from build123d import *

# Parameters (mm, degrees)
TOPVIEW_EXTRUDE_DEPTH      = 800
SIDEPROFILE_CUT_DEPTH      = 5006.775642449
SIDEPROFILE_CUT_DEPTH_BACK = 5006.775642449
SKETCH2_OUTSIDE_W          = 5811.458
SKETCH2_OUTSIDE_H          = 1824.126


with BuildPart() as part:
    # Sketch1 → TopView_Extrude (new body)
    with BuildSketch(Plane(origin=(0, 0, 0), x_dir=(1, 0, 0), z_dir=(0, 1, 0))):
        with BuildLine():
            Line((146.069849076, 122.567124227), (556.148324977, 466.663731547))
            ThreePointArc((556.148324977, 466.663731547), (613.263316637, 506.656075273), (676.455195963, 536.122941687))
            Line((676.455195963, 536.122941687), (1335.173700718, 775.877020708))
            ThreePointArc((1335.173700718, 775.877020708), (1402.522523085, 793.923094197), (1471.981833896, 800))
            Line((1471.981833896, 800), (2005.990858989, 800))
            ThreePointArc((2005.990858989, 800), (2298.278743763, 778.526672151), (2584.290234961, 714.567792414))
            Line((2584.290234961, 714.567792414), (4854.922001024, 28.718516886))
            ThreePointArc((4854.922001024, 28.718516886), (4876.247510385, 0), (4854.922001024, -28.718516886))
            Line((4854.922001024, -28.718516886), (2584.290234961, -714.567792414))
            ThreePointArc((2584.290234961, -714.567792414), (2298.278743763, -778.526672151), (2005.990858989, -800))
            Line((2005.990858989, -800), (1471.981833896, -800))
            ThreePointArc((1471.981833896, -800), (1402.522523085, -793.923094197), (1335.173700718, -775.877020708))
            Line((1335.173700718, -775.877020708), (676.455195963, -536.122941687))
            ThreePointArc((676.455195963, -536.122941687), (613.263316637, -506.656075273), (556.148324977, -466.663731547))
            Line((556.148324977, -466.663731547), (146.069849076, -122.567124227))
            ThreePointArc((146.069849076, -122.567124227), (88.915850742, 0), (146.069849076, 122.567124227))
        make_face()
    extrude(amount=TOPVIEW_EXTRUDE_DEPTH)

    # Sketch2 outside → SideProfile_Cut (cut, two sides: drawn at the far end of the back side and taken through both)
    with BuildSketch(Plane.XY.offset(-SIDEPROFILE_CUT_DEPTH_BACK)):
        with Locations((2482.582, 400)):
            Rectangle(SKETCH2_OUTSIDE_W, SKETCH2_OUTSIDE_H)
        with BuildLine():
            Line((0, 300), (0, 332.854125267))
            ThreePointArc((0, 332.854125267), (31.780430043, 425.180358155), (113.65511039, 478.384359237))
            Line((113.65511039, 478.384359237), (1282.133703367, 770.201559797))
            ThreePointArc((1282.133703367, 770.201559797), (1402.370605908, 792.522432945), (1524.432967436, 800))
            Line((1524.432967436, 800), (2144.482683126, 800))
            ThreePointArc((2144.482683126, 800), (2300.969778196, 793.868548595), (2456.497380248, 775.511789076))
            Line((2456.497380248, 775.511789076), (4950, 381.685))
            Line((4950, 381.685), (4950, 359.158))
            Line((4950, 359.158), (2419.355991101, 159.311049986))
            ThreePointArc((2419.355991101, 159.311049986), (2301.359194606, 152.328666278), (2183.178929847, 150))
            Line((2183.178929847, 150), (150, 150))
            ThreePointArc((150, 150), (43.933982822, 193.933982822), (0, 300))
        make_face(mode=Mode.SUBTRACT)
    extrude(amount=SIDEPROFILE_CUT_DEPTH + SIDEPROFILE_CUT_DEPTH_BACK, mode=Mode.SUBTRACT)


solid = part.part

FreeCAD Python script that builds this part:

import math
import FreeCAD as App
import Part
import Sketcher
from FreeCAD import Vector

doc = App.newDocument("Part")
body = doc.addObject("PartDesign::Body", "Body")

# Sketch on XZ plane
sketch1 = body.newObject("Sketcher::SketchObject", "Sketch")
sketch1.AttachmentSupport = (doc.getObject("XZ_Plane"), [""])
sketch1.MapMode = "FlatFace"
sketch1.addGeometry([
    Part.LineSegment(Vector(556.148325, -466.663732, 0), Vector(146.069849, -122.567124, 0)),  # 0
    Part.ArcOfCircle(Part.Circle(Vector(248.915851, 0, 0), Vector(0, 0, 1), 160), math.radians(129.999993), math.radians(230.000007)),  # 1
    Part.LineSegment(Vector(146.069849, 122.567124, 0), Vector(556.148325, 466.663732, 0)),  # 2
    Part.ArcOfCircle(Part.Circle(Vector(813.263329, 160.245921, 0), Vector(0, 0, 1), 400), math.radians(110.000012), math.radians(129.999993)),  # 3
    Part.LineSegment(Vector(676.455196, 536.122942, 0), Vector(1335.173701, 775.877021, 0)),  # 4
    Part.ArcOfCircle(Part.Circle(Vector(1471.981834, 400, 0), Vector(0, 0, 1), 400), math.radians(90), math.radians(110.000012)),  # 5
    Part.LineSegment(Vector(1471.981834, 800, 0), Vector(2005.990859, 800, 0)),  # 6
    Part.ArcOfCircle(Part.Circle(Vector(2005.990859, -1200, 0), Vector(0, 0, 1), 2000), math.radians(73.192944), math.radians(90)),  # 7
    Part.LineSegment(Vector(2584.290235, 714.567792, 0), Vector(4854.922001, 28.718517, 0)),  # 8
    Part.ArcOfCircle(Part.Circle(Vector(4846.24751, 0, 0), Vector(0, 0, 1), 30), math.radians(-73.192944), math.radians(73.192944)),  # 9
    Part.LineSegment(Vector(4854.922001, -28.718517, 0), Vector(2584.290235, -714.567792, 0)),  # 10
    Part.ArcOfCircle(Part.Circle(Vector(2005.990859, 1200, 0), Vector(0, 0, 1), 2000), math.radians(-90), math.radians(-73.192944)),  # 11
    Part.LineSegment(Vector(2005.990859, -800, 0), Vector(1471.981834, -800, 0)),  # 12
    Part.ArcOfCircle(Part.Circle(Vector(1471.981834, -400, 0), Vector(0, 0, 1), 400), math.radians(-110.000012), math.radians(-90)),  # 13
    Part.LineSegment(Vector(1335.173701, -775.877021, 0), Vector(676.455196, -536.122942, 0)),  # 14
    Part.ArcOfCircle(Part.Circle(Vector(813.263329, -160.245921, 0), Vector(0, 0, 1), 400), math.radians(-129.999993), math.radians(-110.000012)),  # 15
], False)
sketch1.addConstraint([
    Sketcher.Constraint("Coincident", 0, 2, 1, 2),
    Sketcher.Constraint("Coincident", 1, 1, 2, 1),
    Sketcher.Constraint("Coincident", 2, 2, 3, 2),
    Sketcher.Constraint("Coincident", 3, 1, 4, 1),
    Sketcher.Constraint("Coincident", 4, 2, 5, 2),
    Sketcher.Constraint("Coincident", 5, 1, 6, 1),
    Sketcher.Constraint("Coincident", 6, 2, 7, 2),
    Sketcher.Constraint("Coincident", 7, 1, 8, 1),
    Sketcher.Constraint("Coincident", 8, 2, 9, 2),
    Sketcher.Constraint("Coincident", 9, 1, 10, 1),
    Sketcher.Constraint("Coincident", 10, 2, 11, 2),
    Sketcher.Constraint("Coincident", 11, 1, 12, 1),
    Sketcher.Constraint("Coincident", 12, 2, 13, 2),
    Sketcher.Constraint("Coincident", 13, 1, 14, 1),
    Sketcher.Constraint("Coincident", 14, 2, 15, 2),
    Sketcher.Constraint("Coincident", 15, 1, 0, 1),
    Sketcher.Constraint("Horizontal", 6),
    Sketcher.Constraint("Horizontal", 12),
    Sketcher.Constraint("PointOnObject", 1, 3, -1),
    Sketcher.Constraint("PointOnObject", 9, 3, -1),
    Sketcher.Constraint("Radius", 1, 160.0),
    Sketcher.Constraint("Radius", 3, 400.0),
    Sketcher.Constraint("Radius", 5, 400.0),
    Sketcher.Constraint("Radius", 7, 2000.0),
    Sketcher.Constraint("Radius", 9, 30.0),
    Sketcher.Constraint("Radius", 11, 2000.0),
    Sketcher.Constraint("Radius", 13, 400.0),
    Sketcher.Constraint("Radius", 15, 400.0),
    Sketcher.Constraint("DistanceY", -1, 1, 5, 3, 400.0),
    Sketcher.Constraint("DistanceY", -1, 1, 11, 3, 1200.0),
    Sketcher.Constraint("DistanceX", -1, 1, 8, 2, 4854.922001),
    Sketcher.Constraint("DistanceX", -1, 1, 9, 1, 4854.922001),
    Sketcher.Constraint("DistanceX", 0, 2, 1, 3, 102.846002),
    Sketcher.Constraint("DistanceX", 1, 1, 1, 3, 102.846002),
    Sketcher.Constraint("DistanceX", -1, 1, 4, 2, 1335.173701),
    Sketcher.Constraint("DistanceX", -1, 1, 13, 1, 1335.173701),
    Sketcher.Constraint("DistanceY", 3, 3, 4, 2, 615.6311),
    Sketcher.Constraint("DistanceX", 13, 3, 10, 2, 1112.308401),
    Sketcher.Constraint("DistanceX", 5, 3, 10, 2, 1112.308401),
    Sketcher.Constraint("DistanceX", 12, 2, 10, 2, 1112.308401),
    Sketcher.Constraint("DistanceY", 13, 1, 15, 3, 615.6311),
    Sketcher.Constraint("DistanceX", 6, 1, 6, 2, 534.009025),
    Sketcher.Constraint("DistanceX", 12, 2, 12, 1, 534.009025),
    Sketcher.Constraint("DistanceX", -1, 1, 1, 3, 248.915851),
    Sketcher.Constraint("DistanceX", -1, 1, 3, 3, 813.263329),
    Sketcher.Constraint("DistanceY", -1, 1, 3, 3, 160.245921),
    Sketcher.Constraint("DistanceX", -1, 1, 7, 3, 2005.990859),
    Sketcher.Constraint("DistanceX", -1, 1, 9, 3, 4846.24751),
    Sketcher.Constraint("DistanceX", -1, 1, 11, 3, 2005.990859),
    Sketcher.Constraint("DistanceX", -1, 1, 15, 3, 813.263329),
    Sketcher.Constraint("DistanceY", -1, 1, 2, 2, 466.663732),
    Sketcher.Constraint("DistanceY", -1, 1, 3, 1, 536.122942),
    Sketcher.Constraint("DistanceX", -1, 1, 6, 2, 2005.990859),
    Sketcher.Constraint("DistanceY", 14, 2, -1, 1, 536.122942),
    Sketcher.Constraint("DistanceY", 15, 1, -1, 1, 466.663732),
    Sketcher.Constraint("Distance", 8, 2371.952328),
])
pad1 = body.newObject("PartDesign::Pad", "Pad")
pad1.Profile = sketch1
pad1.Length = 800
pad1.Reversed = True

# Sketch on XY plane
sketch2 = body.newObject("Sketcher::SketchObject", "Sketch001")
sketch2.AttachmentSupport = (doc.getObject("XY_Plane"), [""])
sketch2.MapMode = "FlatFace"
sketch2.addGeometry([
    Part.LineSegment(Vector(-423, 1312, 0), Vector(-423, -512, 0)),  # 0
    Part.LineSegment(Vector(-423, -512, 0), Vector(5388, -512, 0)),  # 1
    Part.LineSegment(Vector(5388, -512, 0), Vector(5388, 1312, 0)),  # 2
    Part.LineSegment(Vector(5388, 1312, 0), Vector(-423, 1312, 0)),  # 3
    Part.ArcOfCircle(Part.Circle(Vector(150, 300, 0), Vector(0, 0, 1), 150), math.radians(180), math.radians(270)),  # 4
    Part.LineSegment(Vector(0, 300, 0), Vector(0, 333, 0)),  # 5
    Part.ArcOfCircle(Part.Circle(Vector(150, 333, 0), Vector(0, 0, 1), 150), math.radians(104), math.radians(180)),  # 6
    Part.LineSegment(Vector(114, 478, 0), Vector(1282, 770, 0)),  # 7
    Part.ArcOfCircle(Part.Circle(Vector(1524, -200, 0), Vector(0, 0, 1), 1000), math.radians(90), math.radians(104.02)),  # 8
    Part.LineSegment(Vector(1524, 800, 0), Vector(2144, 800, 0)),  # 9
    Part.ArcOfCircle(Part.Circle(Vector(2144, -1200, 0), Vector(0, 0, 1), 2000), math.radians(81.02), math.radians(90)),  # 10
    Part.LineSegment(Vector(2456, 776, 0), Vector(4950, 382, 0)),  # 11
    Part.LineSegment(Vector(4950, 382, 0), Vector(4950, 359, 0)),  # 12
    Part.LineSegment(Vector(4950, 359, 0), Vector(2419, 159, 0)),  # 13
    Part.ArcOfCircle(Part.Circle(Vector(2183, 3150, 0), Vector(0, 0, 1), 3000), math.radians(-90), math.radians(-85.48)),  # 14
    Part.LineSegment(Vector(2183, 150, 0), Vector(150, 150, 0)),  # 15
], False)
sketch2.addConstraint([
    Sketcher.Constraint("Coincident", 0, 2, 1, 1),
    Sketcher.Constraint("Coincident", 1, 2, 2, 1),
    Sketcher.Constraint("Coincident", 2, 2, 3, 1),
    Sketcher.Constraint("Coincident", 3, 2, 0, 1),
    Sketcher.Constraint("Tangent", 4, 1, 5, 1),
    Sketcher.Constraint("Tangent", 5, 2, 6, 2),
    Sketcher.Constraint("Tangent", 6, 1, 7, 1),
    Sketcher.Constraint("Coincident", 7, 2, 8, 2),
    Sketcher.Constraint("Tangent", 8, 1, 9, 1),
    Sketcher.Constraint("Coincident", 9, 2, 10, 2),
    Sketcher.Constraint("Coincident", 10, 1, 11, 1),
    Sketcher.Constraint("Coincident", 11, 2, 12, 1),
    Sketcher.Constraint("Coincident", 12, 2, 13, 1),
    Sketcher.Constraint("Coincident", 13, 2, 14, 2),
    Sketcher.Constraint("Coincident", 14, 1, 15, 1),
    Sketcher.Constraint("Tangent", 15, 2, 4, 2),
    Sketcher.Constraint("Vertical", 0),
    Sketcher.Constraint("Horizontal", 1),
    Sketcher.Constraint("Vertical", 2),
    Sketcher.Constraint("Horizontal", 3),
    Sketcher.Constraint("Vertical", 5),
    Sketcher.Constraint("Horizontal", 9),
    Sketcher.Constraint("Vertical", 12),
    Sketcher.Constraint("Horizontal", 15),
    Sketcher.Constraint("Equal", 4, 6),
    Sketcher.Constraint("PointOnObject", 4, 1, -2),
    Sketcher.Constraint("Vertical", 10, 3, 9, 2),
    Sketcher.Constraint("Radius", 4, 150.0),
    Sketcher.Constraint("Radius", 8, 1000.0),
    Sketcher.Constraint("Radius", 10, 2000.0),
    Sketcher.Constraint("Radius", 14, 3000.0),
    Sketcher.Constraint("DistanceY", -1, 1, 4, 3, 300.0),
    Sketcher.Constraint("DistanceY", 8, 3, -1, 1, 200.0),
    Sketcher.Constraint("DistanceX", -1, 1, 11, 2, 4950.0),
    Sketcher.Constraint("DistanceX", 1, 1, 1, 2, 5811.458),
    Sketcher.Constraint("DistanceY", 0, 2, 0, 1, 1824.126),
    Sketcher.Constraint("DistanceY", 12, 2, 12, 1, 22.527),
    Sketcher.Constraint("DistanceX", 0, 2, -1, 1, 423.147),
    Sketcher.Constraint("DistanceY", 0, 2, -1, 1, 512.063),
    Sketcher.Constraint("DistanceY", -1, 1, 11, 2, 381.685),
    Sketcher.Constraint("DistanceX", 15, 2, 15, 1, 2033.17893),
    Sketcher.Constraint("DistanceY", 6, 1, 7, 2, 291.817201),
    Sketcher.Constraint("Distance", 13, 2538.52278),
    Sketcher.Constraint("DistanceX", 9, 1, 9, 2, 620.049716),
    Sketcher.Constraint("DistanceY", 5, 1, 5, 2, 32.854125),
    Sketcher.Constraint("DistanceX", -1, 1, 14, 3, 2183.17893),
    Sketcher.Constraint("DistanceY", -1, 1, 7, 2, 770.20156),
    Sketcher.Constraint("Distance", 11, 2524.411784),
])
pocket1 = body.newObject("PartDesign::Pocket", "Pocket")
pocket1.Profile = sketch2
pocket1.Type = "ThroughAll"
pocket1.Midplane = True

doc.recompute()
